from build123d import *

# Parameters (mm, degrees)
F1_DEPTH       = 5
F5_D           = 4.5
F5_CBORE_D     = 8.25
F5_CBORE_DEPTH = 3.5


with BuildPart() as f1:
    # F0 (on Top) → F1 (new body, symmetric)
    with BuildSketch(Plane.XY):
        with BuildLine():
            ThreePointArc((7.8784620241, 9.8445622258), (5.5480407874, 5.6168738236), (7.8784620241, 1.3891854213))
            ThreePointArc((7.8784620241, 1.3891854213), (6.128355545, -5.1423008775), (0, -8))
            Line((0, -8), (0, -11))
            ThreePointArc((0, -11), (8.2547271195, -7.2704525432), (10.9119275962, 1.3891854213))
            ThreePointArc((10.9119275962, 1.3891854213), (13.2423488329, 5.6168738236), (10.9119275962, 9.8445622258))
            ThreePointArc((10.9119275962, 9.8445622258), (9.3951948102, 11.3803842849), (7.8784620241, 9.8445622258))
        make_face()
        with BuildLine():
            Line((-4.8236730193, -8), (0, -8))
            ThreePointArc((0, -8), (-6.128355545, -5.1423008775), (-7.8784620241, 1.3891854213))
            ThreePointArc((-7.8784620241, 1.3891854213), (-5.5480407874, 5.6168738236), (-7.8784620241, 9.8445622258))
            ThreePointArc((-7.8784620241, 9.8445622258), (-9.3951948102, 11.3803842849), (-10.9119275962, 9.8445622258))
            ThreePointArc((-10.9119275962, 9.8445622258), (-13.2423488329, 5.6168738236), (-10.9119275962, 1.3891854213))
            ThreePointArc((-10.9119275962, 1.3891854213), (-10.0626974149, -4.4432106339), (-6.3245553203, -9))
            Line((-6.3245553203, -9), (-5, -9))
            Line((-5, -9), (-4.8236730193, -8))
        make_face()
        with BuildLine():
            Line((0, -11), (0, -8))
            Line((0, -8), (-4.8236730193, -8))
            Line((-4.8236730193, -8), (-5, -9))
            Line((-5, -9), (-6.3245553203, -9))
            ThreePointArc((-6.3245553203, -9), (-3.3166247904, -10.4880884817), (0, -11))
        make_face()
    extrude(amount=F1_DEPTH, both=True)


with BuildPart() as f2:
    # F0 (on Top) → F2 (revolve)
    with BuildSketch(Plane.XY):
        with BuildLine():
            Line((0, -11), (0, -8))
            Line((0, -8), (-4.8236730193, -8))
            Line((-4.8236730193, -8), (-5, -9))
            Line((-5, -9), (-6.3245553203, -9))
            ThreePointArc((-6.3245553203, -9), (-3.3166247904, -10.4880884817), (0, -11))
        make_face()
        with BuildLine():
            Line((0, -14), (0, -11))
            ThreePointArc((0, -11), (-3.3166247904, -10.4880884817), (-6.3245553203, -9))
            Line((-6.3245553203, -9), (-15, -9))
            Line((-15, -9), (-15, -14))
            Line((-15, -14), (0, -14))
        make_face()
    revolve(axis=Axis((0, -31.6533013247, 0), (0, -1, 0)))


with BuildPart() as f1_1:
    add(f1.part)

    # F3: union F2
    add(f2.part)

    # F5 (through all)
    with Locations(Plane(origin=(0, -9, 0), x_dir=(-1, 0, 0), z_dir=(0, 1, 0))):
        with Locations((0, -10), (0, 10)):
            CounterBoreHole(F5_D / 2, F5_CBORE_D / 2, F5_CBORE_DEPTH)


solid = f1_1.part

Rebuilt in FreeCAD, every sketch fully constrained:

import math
import FreeCAD as App
import Part
import Sketcher

V = App.Vector
Q = App.Units.Quantity


def add_polygon(sketch, points):
    """Adds a closed chain of lines whose ends are joined by coincident constraints."""
    first, n = sketch.GeometryCount, len(points)
    for a, b in zip(points, points[1:] + points[:1]):
        sketch.addGeometry(Part.LineSegment(App.Vector(*a, 0), App.Vector(*b, 0)), False)
    for i in range(n):
        sketch.addConstraint(Sketcher.Constraint("Coincident", first + i, 2, first + (i + 1) % n, 1))

doc = App.newDocument("Part")
params = doc.addObject("Spreadsheet::Sheet", "Params")
for row, (alias, value) in enumerate([
    ("sketch1_radius", "5 mm"),
    ("sketch1_radius2", "8 mm"),
    ("sketch1_radius3", "5 mm"),
    ("sketch1_radius4", "5 mm"),
    ("sketch1_radius5", "11 mm"),
    ("pad1_length", "10 mm"),
    ("sketch2_width", "10 mm"),
    ("sketch2_width2", "15 mm"),
    ("sketch2_height", "5 mm"),
    ("sketch2_height2", "6 mm"),
    ("revolution_angle", "360 deg"),
    ("sketch3_diameter", "4.5 mm"),
    ("hole_diameter", "4.5 mm"),
    ("hole_cbore_diameter", "8.25 mm"),
    ("hole_cbore_depth", "3.5 mm"),
], start=1):
    params.set(f"A{row}", alias)
    params.set(f"B{row}", "=" + value)
    params.setAlias(f"B{row}", alias)

body = doc.addObject("PartDesign::Body", "Body")

# Sketch on XY plane
sketch1 = body.newObject("Sketcher::SketchObject", "Sketch")
sketch1.AttachmentSupport = (doc.getObject("XY_Plane"), [""])
sketch1.MapMode = "FlatFace"
sketch1.addGeometry(Part.ArcOfCircle(Part.Circle(V(10.548041, 5.616874, 0), V(0, 0, 1), 5), math.radians(122.27041), math.radians(237.72959)), False)
sketch1.addGeometry(Part.ArcOfCircle(Part.Circle(V(0, 0, 0), V(0, 0, 1), 8), math.radians(-90), math.radians(10)), False)
sketch1.addGeometry(Part.ArcOfCircle(Part.Circle(V(0, 0, 0), V(0, 0, 1), 8), math.radians(170), math.radians(270)), False)
sketch1.addGeometry(Part.ArcOfCircle(Part.Circle(V(-10.548041, 5.616874, 0), V(0, 0, 1), 5), math.radians(-57.72959), math.radians(57.72959)), False)
sketch1.addGeometry(Part.ArcOfCircle(Part.Circle(V(-9.395195, 9.863533, 0), V(0, 0, 1), 1.516851), math.radians(-0.716594), math.radians(180.716594)), False)
sketch1.addGeometry(Part.ArcOfCircle(Part.Circle(V(-8.242349, 5.616874, 0), V(0, 0, 1), 5), math.radians(122.27041), math.radians(237.72959)), False)
sketch1.addGeometry(Part.ArcOfCircle(Part.Circle(V(0, 0, 0), V(0, 0, 1), 11), math.radians(172.744766), math.radians(234.903199)), False)
sketch1.addGeometry(Part.ArcOfCircle(Part.Circle(V(0, 0, 0), V(0, 0, 1), 11), math.radians(-125.096801), math.radians(-90)), False)
sketch1.addGeometry(Part.ArcOfCircle(Part.Circle(V(0, 0, 0), V(0, 0, 1), 11), math.radians(-90), math.radians(7.255234)), False)
sketch1.addGeometry(Part.ArcOfCircle(Part.Circle(V(8.242349, 5.616874, 0), V(0, 0, 1), 5), math.radians(-57.72959), math.radians(57.72959)), False)
sketch1.addGeometry(Part.ArcOfCircle(Part.Circle(V(9.395195, 9.863533, 0), V(0, 0, 1), 1.516851), math.radians(-0.716594), math.radians(180.716594)), False)
sketch1.addConstraint(Sketcher.Constraint("Coincident", 0, 2, 1, 2))
sketch1.addConstraint(Sketcher.Constraint("Coincident", 1, 1, 2, 2))
sketch1.addConstraint(Sketcher.Constraint("Coincident", 2, 1, 3, 1))
sketch1.addConstraint(Sketcher.Constraint("Coincident", 3, 2, 4, 1))
sketch1.addConstraint(Sketcher.Constraint("Coincident", 4, 2, 5, 1))
sketch1.addConstraint(Sketcher.Constraint("Coincident", 5, 2, 6, 1))
sketch1.addConstraint(Sketcher.Constraint("Coincident", 6, 2, 7, 1))
sketch1.addConstraint(Sketcher.Constraint("Coincident", 7, 2, 8, 1))
sketch1.addConstraint(Sketcher.Constraint("Coincident", 8, 2, 9, 1))
sketch1.addConstraint(Sketcher.Constraint("Coincident", 9, 2, 10, 1))
sketch1.addConstraint(Sketcher.Constraint("Coincident", 10, 2, 0, 1))
sketch1.addConstraint(Sketcher.Constraint("Coincident", 1, 3, -1, 1))
sketch1.addConstraint(Sketcher.Constraint("Coincident", 2, 3, -1, 1))
sketch1.addConstraint(Sketcher.Constraint("Coincident", 6, 3, -1, 1))
sketch1.addConstraint(Sketcher.Constraint("Coincident", 7, 3, -1, 1))
sketch1.addConstraint(Sketcher.Constraint("Coincident", 8, 3, -1, 1))
sketch1.addConstraint(Sketcher.Constraint("PointOnObject", 1, 1, -2))
sketch1.addConstraint(Sketcher.Constraint("PointOnObject", 7, 2, -2))
sketch1.addConstraint(Sketcher.Constraint("Radius", 0, Q("5 mm")))
sketch1.addConstraint(Sketcher.Constraint("Radius", 1, Q("8 mm")))
sketch1.addConstraint(Sketcher.Constraint("Radius", 3, Q("5 mm")))
sketch1.addConstraint(Sketcher.Constraint("Radius", 5, Q("5 mm")))
sketch1.addConstraint(Sketcher.Constraint("Radius", 6, Q("11 mm")))
sketch1.addConstraint(Sketcher.Constraint("Radius", 9, Q("5 mm")))
sketch1.addConstraint(Sketcher.Constraint("DistanceY", 6, 2, -1, 1, Q("9 mm")))
sketch1.addConstraint(Sketcher.Constraint("Radius", 4, Q("1.516851 mm")))
sketch1.addConstraint(Sketcher.Constraint("Radius", 10, Q("1.516851 mm")))
sketch1.addConstraint(Sketcher.Constraint("DistanceX", -1, 1, 0, 3, Q("10.548041 mm")))
sketch1.addConstraint(Sketcher.Constraint("DistanceX", 3, 3, -1, 1, Q("10.548041 mm")))
sketch1.addConstraint(Sketcher.Constraint("DistanceX", 5, 3, -1, 1, Q("8.242349 mm")))
sketch1.addConstraint(Sketcher.Constraint("DistanceX", -1, 1, 9, 3, Q("8.242349 mm")))
sketch1.addConstraint(Sketcher.Constraint("DistanceY", 3, 3, 4, 3, Q("4.246659 mm")))
sketch1.addConstraint(Sketcher.Constraint("DistanceY", 0, 3, 4, 3, Q("4.246659 mm")))
sketch1.addConstraint(Sketcher.Constraint("DistanceY", 5, 3, 4, 3, Q("4.246659 mm")))
sketch1.addConstraint(Sketcher.Constraint("DistanceY", 0, 3, 10, 3, Q("4.246659 mm")))
sketch1.addConstraint(Sketcher.Constraint("DistanceY", 9, 3, 10, 3, Q("4.246659 mm")))
sketch1.addConstraint(Sketcher.Constraint("DistanceY", 0, 2, 9, 3, Q("4.227688 mm")))
sketch1.addConstraint(Sketcher.Constraint("DistanceY", 3, 2, 4, 3, Q("0.018971 mm")))
sketch1.addConstraint(Sketcher.Constraint("DistanceY", 9, 2, 10, 3, Q("0.018971 mm")))
sketch1.setExpression("Constraints[18]", "Params.sketch1_radius")
sketch1.setExpression("Constraints[19]", "Params.sketch1_radius2")
sketch1.setExpression("Constraints[20]", "Params.sketch1_radius3")
sketch1.setExpression("Constraints[21]", "Params.sketch1_radius4")
sketch1.setExpression("Constraints[22]", "Params.sketch1_radius5")
pad1 = body.newObject("PartDesign::Pad", "Pad")
pad1.Profile = sketch1
pad1.setExpression("Length", "Params.pad1_length")
pad1.Midplane = True
body2 = doc.addObject("PartDesign::Body", "Body001")

# Sketch on XY plane
sketch2 = body2.newObject("Sketcher::SketchObject", "Sketch001")
sketch2.AttachmentSupport = (doc.getObject("XY_Plane001"), [""])
sketch2.MapMode = "FlatFace"
add_polygon(sketch2, [(0, -8), (-4.823673, -8), (-5, -9), (-15, -9), (-15, -14), (0, -14)])  # lines 0-5
sketch2.addConstraint(Sketcher.Constraint("Horizontal", 0))
sketch2.addConstraint(Sketcher.Constraint("Horizontal", 2))
sketch2.addConstraint(Sketcher.Constraint("Vertical", 3))
sketch2.addConstraint(Sketcher.Constraint("Horizontal", 4))
sketch2.addConstraint(Sketcher.Constraint("Vertical", 5))
sketch2.addConstraint(Sketcher.Constraint("PointOnObject", 4, 2, -2))
sketch2.addConstraint(Sketcher.Constraint("DistanceX", 2, 2, 2, 1, Q("10 mm")))
sketch2.addConstraint(Sketcher.Constraint("DistanceX", 4, 1, 4, 2, Q("15 mm")))
sketch2.addConstraint(Sketcher.Constraint("DistanceY", 3, 2, 3, 1, Q("5 mm")))
sketch2.addConstraint(Sketcher.Constraint("DistanceY", 5, 1, 5, 2, Q("6 mm")))
sketch2.addConstraint(Sketcher.Constraint("Angle", 1, Q("-100 deg")))
sketch2.addConstraint(Sketcher.Constraint("DistanceY", 0, 2, -1, 1, Q("8 mm")))
sketch2.setExpression("Constraints[12]", "Params.sketch2_width")
sketch2.setExpression("Constraints[13]", "Params.sketch2_width2")
sketch2.setExpression("Constraints[14]", "Params.sketch2_height")
sketch2.setExpression("Constraints[15]", "Params.sketch2_height2")
revolution = body2.newObject("PartDesign::Revolution", "Revolution")
revolution.Profile = sketch2
revolution.ReferenceAxis = (sketch2, ["V_Axis"])
revolution.setExpression("Angle", "Params.revolution_angle")
doc.recompute()

boolean = body.newObject("PartDesign::Boolean", "Boolean")
boolean.Type = "Fuse"
boolean.addObjects([body2])

# Sketch on XZ plane
sketch3 = body.newObject("Sketcher::SketchObject", "Sketch002")
sketch3.AttachmentSupport = (doc.getObject("XZ_Plane"), [""])
sketch3.MapMode = "FlatFace"
sketch3.AttachmentOffset = App.Placement(V(0, 0, 9), App.Rotation())
sketch3.addGeometry(Part.Circle(V(0, -10, 0), V(0, 0, 1), 2.25), False)
sketch3.addGeometry(Part.Circle(V(0, 10, 0), V(0, 0, 1), 2.25), False)
sketch3.addConstraint(Sketcher.Constraint("Equal", 0, 1))
sketch3.addConstraint(Sketcher.Constraint("Symmetric", 0, 3, 1, 3, -1, 1))
sketch3.addConstraint(Sketcher.Constraint("PointOnObject", 0, 3, -2))
sketch3.addConstraint(Sketcher.Constraint("Diameter", 0, Q("4.5 mm")))
sketch3.addConstraint(Sketcher.Constraint("DistanceY", 0, 3, -1, 1, Q("10 mm")))
sketch3.setExpression("Constraints[3]", "Params.sketch3_diameter")
doc.recompute()
hole = body.newObject("PartDesign::Hole", "Hole")
hole.Profile = sketch3
hole.ThreadType = "None"
hole.setExpression("Diameter", "Params.hole_diameter")
hole.DepthType = "ThroughAll"
hole.HoleCutType = "Counterbore"
hole.setExpression("HoleCutDiameter", "Params.hole_cbore_diameter")
hole.setExpression("HoleCutDepth", "Params.hole_cbore_depth")
hole.Reversed = True

doc.recompute()
